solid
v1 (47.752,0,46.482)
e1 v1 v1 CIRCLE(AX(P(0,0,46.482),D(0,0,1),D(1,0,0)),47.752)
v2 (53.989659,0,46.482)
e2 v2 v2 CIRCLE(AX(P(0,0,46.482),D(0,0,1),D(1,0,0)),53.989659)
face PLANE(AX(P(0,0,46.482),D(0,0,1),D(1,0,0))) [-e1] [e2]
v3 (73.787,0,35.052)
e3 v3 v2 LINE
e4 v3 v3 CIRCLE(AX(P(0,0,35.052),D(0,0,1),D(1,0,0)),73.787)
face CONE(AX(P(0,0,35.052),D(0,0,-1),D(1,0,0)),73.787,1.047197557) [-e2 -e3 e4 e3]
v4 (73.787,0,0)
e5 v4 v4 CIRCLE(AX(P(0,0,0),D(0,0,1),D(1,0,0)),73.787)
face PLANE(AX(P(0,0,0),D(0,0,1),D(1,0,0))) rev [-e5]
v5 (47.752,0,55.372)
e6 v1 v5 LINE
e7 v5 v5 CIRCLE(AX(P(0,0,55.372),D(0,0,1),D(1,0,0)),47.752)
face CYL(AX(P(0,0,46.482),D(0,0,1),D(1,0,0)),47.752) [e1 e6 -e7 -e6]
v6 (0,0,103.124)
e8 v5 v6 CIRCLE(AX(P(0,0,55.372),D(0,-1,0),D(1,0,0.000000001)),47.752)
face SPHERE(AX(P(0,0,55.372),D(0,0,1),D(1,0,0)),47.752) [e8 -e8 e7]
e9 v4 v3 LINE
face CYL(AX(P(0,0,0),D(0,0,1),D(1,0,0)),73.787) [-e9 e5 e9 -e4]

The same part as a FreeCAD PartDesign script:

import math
import FreeCAD as App
import Part
import Sketcher
Q = App.Units.Quantity


def edges_at(feature, points):
    """Names of the edges that pass closest to the given points."""
    edges = feature.Shape.Edges
    near = lambda p: min(range(len(edges)), key=lambda i: edges[i].distToShape(Part.Vertex(*p))[0])
    return sorted({f"Edge{near(p) + 1}" for p in points})

doc = App.newDocument("Part")
body = doc.addObject("PartDesign::Body", "Body")

# Sketch on XZ plane
sketch1 = body.newObject("Sketcher::SketchObject", "Sketch")
sketch1.AttachmentSupport = (doc.getObject("XZ_Plane"), [""])
sketch1.MapMode = "FlatFace"
sketch1.addGeometry([
    Part.LineSegment(App.Vector(0, 103, 0), App.Vector(0, 0, 0)),  # 0
    Part.LineSegment(App.Vector(0, 0, 0), App.Vector(74, 0, 0)),  # 1
    Part.LineSegment(App.Vector(74, 0, 0), App.Vector(74, 46, 0)),  # 2
    Part.LineSegment(App.Vector(74, 46, 0), App.Vector(48, 46, 0)),  # 3
    Part.LineSegment(App.Vector(48, 46, 0), App.Vector(48, 55, 0)),  # 4
    Part.ArcOfCircle(Part.Circle(App.Vector(0, 55, 0), App.Vector(0, 0, 1), 48), math.radians(0), math.radians(90)),  # 5
], False)
sketch1.addConstraint([
    Sketcher.Constraint("Coincident", 0, 2, 1, 1),
    Sketcher.Constraint("Coincident", 1, 2, 2, 1),
    Sketcher.Constraint("Coincident", 2, 2, 3, 1),
    Sketcher.Constraint("Coincident", 3, 2, 4, 1),
    Sketcher.Constraint("Tangent", 4, 2, 5, 1),
    Sketcher.Constraint("Coincident", 5, 2, 0, 1),
    Sketcher.Constraint("Vertical", 0),
    Sketcher.Constraint("Horizontal", 1),
    Sketcher.Constraint("Vertical", 2),
    Sketcher.Constraint("Horizontal", 3),
    Sketcher.Constraint("Vertical", 4),
    Sketcher.Constraint("Coincident", 0, 2, -1, 1),
    Sketcher.Constraint("PointOnObject", 5, 3, -2),
    Sketcher.Constraint("Radius", 5, Q("1.88 in")),
    Sketcher.Constraint("DistanceY", 0, 2, 0, 1, Q("4.06 in")),
    Sketcher.Constraint("DistanceY", 2, 1, 2, 2, Q("1.83 in")),
    Sketcher.Constraint("DistanceX", 1, 1, 1, 2, Q("2.905 in")),
])
revolution = body.newObject("PartDesign::Revolution", "Revolution")
revolution.Profile = sketch1
revolution.ReferenceAxis = (sketch1, ["V_Axis"])
revolution.Angle = 360
doc.recompute()

chamfer = body.newObject("PartDesign::Chamfer", "Chamfer")
chamfer.Base = (revolution, edges_at(revolution, [(-73.787, 0, 46.482)]))
chamfer.ChamferType = "Two distances"
chamfer.Size = Q("0.45 in")
chamfer.Size2 = 19.797341

doc.recompute()
